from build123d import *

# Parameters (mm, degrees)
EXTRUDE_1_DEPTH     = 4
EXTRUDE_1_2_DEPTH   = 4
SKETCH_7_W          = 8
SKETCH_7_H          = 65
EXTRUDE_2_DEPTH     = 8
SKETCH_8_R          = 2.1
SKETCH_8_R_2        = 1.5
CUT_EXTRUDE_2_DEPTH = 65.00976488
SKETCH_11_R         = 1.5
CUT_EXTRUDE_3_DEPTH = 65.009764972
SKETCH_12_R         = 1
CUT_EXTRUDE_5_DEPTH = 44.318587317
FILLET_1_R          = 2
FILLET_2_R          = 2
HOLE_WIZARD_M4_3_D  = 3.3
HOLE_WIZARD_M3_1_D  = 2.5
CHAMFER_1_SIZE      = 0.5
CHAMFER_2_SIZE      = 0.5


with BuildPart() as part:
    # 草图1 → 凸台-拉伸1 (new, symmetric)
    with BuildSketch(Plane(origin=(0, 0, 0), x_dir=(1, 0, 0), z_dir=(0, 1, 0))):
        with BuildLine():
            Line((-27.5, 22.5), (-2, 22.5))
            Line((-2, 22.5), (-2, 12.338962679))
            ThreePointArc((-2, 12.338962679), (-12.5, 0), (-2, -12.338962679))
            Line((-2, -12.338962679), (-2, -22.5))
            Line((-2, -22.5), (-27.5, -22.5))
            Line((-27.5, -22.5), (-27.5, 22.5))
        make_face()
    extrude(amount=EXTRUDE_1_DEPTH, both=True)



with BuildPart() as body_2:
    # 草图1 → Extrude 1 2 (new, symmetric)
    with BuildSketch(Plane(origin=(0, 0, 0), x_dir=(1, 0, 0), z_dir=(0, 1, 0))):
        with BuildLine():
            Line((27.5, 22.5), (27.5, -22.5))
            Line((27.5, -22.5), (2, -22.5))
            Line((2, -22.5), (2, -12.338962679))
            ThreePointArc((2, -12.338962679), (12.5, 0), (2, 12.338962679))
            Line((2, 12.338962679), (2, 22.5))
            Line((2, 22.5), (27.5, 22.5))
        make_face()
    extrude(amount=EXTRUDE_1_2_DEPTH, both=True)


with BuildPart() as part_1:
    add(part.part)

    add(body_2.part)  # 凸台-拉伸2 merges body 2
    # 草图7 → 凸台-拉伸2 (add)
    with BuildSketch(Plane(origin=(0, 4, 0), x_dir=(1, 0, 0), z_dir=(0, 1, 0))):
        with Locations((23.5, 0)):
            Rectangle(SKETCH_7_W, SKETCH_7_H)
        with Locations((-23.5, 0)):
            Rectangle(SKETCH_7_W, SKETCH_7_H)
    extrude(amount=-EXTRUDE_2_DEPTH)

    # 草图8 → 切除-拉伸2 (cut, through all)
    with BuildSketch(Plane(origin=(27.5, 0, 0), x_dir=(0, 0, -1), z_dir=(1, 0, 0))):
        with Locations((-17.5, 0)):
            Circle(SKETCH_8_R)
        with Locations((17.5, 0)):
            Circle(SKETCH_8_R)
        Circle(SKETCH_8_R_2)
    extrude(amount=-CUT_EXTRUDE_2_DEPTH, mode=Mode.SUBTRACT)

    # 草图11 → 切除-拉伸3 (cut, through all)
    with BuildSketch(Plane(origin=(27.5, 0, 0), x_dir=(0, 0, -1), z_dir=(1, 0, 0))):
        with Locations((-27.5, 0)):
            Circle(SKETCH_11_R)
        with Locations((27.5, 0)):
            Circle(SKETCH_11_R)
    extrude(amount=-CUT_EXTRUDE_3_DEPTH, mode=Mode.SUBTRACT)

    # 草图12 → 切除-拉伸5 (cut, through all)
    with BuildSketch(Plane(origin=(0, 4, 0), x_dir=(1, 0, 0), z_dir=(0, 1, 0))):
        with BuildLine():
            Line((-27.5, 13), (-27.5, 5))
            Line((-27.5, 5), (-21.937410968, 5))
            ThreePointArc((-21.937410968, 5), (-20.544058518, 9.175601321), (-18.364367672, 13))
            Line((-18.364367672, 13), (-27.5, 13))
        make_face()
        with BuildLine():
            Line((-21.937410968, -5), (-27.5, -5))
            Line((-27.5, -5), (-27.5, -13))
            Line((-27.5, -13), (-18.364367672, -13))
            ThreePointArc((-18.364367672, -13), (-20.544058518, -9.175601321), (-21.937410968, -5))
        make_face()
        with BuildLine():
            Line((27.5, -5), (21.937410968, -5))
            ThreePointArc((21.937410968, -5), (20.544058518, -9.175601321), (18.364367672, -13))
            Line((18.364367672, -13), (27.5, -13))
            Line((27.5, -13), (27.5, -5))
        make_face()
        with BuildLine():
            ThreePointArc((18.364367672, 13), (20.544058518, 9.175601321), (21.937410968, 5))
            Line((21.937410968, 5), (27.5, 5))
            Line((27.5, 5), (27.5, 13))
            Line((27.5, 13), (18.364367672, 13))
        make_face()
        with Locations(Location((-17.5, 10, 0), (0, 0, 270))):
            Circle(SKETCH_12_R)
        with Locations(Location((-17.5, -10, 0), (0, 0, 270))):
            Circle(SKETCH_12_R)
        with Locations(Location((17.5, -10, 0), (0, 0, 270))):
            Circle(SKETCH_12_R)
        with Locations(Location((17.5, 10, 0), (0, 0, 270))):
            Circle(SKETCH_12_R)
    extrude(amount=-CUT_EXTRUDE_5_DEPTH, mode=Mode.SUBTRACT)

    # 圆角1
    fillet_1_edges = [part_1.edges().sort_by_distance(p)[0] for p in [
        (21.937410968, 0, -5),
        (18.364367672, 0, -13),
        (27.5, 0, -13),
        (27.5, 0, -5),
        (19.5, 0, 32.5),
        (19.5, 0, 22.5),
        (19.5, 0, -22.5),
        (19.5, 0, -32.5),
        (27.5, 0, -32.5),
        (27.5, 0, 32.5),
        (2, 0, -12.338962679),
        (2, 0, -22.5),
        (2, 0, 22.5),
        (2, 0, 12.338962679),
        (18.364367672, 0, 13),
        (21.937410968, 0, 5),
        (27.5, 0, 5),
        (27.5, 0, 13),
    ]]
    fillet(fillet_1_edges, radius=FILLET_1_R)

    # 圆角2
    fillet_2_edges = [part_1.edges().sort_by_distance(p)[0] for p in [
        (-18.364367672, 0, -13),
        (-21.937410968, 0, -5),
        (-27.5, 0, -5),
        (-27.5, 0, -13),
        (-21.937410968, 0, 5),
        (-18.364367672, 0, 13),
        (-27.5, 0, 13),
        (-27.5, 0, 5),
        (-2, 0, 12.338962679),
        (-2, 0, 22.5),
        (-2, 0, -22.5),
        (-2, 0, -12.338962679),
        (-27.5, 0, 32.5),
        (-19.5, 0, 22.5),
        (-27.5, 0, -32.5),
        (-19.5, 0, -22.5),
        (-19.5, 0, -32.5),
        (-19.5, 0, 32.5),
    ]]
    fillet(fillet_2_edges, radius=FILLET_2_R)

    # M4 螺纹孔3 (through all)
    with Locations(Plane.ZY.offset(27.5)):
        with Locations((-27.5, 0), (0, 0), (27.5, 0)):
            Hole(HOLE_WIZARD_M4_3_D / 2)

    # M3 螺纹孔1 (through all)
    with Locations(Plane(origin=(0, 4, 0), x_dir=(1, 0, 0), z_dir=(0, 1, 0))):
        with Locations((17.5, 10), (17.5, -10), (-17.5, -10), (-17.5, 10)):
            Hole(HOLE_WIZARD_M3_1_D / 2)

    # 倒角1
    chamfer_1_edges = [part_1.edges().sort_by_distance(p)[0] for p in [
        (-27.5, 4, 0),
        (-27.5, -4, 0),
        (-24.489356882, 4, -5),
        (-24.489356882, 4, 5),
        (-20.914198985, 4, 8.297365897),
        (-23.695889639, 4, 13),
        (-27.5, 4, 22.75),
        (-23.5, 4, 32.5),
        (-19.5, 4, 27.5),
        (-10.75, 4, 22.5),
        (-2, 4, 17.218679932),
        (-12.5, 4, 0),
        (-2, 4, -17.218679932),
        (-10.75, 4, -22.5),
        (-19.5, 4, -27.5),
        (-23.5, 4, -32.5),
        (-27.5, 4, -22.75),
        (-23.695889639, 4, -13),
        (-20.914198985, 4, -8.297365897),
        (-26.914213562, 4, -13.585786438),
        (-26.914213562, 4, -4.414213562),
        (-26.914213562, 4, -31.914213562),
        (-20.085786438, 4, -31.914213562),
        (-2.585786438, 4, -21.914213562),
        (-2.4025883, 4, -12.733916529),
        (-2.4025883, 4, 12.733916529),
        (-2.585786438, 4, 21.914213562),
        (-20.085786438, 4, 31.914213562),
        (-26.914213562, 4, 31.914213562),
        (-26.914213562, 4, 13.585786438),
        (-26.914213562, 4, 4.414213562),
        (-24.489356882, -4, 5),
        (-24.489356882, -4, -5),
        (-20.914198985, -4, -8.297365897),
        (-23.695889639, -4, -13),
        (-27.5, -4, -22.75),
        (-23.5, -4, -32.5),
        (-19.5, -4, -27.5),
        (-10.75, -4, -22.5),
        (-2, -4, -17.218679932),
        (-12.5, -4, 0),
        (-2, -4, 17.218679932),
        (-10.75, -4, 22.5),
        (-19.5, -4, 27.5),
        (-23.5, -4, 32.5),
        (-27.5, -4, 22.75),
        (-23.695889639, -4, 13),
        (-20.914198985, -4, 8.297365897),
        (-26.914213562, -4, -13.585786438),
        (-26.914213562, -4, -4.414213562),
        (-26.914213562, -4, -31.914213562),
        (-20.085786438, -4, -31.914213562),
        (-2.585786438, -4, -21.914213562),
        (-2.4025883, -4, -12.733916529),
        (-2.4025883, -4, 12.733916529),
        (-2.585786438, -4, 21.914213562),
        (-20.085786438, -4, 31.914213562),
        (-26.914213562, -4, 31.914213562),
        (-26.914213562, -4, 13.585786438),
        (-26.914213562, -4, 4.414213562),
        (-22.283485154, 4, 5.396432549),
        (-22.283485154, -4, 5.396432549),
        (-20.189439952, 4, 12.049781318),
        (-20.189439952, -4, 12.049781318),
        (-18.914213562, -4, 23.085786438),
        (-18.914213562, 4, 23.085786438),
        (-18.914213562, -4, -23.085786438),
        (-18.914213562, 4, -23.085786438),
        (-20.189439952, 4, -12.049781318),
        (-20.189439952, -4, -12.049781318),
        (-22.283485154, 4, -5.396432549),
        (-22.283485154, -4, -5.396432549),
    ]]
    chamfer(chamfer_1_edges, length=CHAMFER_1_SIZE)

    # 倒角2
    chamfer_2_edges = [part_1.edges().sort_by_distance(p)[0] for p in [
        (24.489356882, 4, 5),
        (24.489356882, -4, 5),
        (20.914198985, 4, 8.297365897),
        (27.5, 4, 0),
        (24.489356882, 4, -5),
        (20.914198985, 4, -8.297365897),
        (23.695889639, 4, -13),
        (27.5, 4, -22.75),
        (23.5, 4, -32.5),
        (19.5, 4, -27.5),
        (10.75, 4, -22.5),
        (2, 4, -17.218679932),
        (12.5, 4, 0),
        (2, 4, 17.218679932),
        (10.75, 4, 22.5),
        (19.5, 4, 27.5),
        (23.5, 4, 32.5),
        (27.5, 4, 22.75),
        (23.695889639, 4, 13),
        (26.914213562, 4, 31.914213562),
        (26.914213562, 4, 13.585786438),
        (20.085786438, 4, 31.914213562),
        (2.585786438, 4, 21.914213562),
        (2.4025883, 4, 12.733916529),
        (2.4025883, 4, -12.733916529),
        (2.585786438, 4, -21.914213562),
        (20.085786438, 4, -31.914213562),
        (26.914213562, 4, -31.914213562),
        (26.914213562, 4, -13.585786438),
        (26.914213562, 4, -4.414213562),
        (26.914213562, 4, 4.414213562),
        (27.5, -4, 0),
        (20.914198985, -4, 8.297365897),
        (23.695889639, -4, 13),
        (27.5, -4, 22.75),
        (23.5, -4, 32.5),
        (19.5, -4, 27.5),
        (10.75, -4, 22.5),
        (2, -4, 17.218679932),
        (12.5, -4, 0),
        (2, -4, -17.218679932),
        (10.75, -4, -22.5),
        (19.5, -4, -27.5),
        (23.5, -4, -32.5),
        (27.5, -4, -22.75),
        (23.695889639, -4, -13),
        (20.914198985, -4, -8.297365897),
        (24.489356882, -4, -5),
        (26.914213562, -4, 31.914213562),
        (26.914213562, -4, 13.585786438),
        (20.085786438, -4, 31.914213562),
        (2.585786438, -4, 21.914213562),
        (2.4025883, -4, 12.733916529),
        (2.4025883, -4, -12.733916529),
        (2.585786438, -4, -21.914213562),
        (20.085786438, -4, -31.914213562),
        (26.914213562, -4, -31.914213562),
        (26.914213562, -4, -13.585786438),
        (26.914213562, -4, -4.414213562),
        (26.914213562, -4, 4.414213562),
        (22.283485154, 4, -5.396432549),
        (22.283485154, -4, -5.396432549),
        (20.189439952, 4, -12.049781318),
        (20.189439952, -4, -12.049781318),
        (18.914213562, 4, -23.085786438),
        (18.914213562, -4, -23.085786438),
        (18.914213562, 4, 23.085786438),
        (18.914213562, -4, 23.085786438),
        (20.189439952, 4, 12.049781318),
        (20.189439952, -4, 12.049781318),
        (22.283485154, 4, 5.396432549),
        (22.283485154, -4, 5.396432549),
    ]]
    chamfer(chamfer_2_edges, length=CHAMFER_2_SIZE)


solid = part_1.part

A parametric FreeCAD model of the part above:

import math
import FreeCAD as App
import Part
import Sketcher
Q = App.Units.Quantity


def edges_at(feature, points):
    """Names of the edges that pass closest to the given points."""
    edges = feature.Shape.Edges
    near = lambda p: min(range(len(edges)), key=lambda i: edges[i].distToShape(Part.Vertex(*p))[0])
    return sorted({f"Edge{near(p) + 1}" for p in points})

doc = App.newDocument("Part")
params = doc.addObject("Spreadsheet::Sheet", "Params")
for row, (alias, value) in enumerate([
    ("sketch1_radius", "12.5 mm"),
    ("sketch1_height", "45 mm"),
    ("sketch1_width", "25.5 mm"),
    ("pad1_length", "8 mm"),
    ("sketch2_radius", "12.5 mm"),
    ("sketch2_height", "45 mm"),
    ("sketch2_width", "25.5 mm"),
    ("pad2_length", "8 mm"),
    ("sketch3_width", "8 mm"),
    ("sketch3_height", "65 mm"),
    ("pad3_length", "8 mm"),
    ("sketch4_diameter", "3 mm"),
    ("sketch4_diameter2", "4.2 mm"),
    ("sketch5_diameter", "3 mm"),
    ("sketch6_diameter", "2 mm"),
    ("sketch6_radius", "22.5 mm"),
    ("sketch6_height", "8 mm"),
    ("fillet_radius", "2 mm"),
    ("fillet2_radius", "2 mm"),
    ("sketch7_diameter", "3.3 mm"),
    ("hole_diameter", "3.3 mm"),
    ("sketch8_diameter", "2.5 mm"),
    ("hole2_diameter", "2.5 mm"),
    ("chamfer_size", "0.5 mm"),
    ("chamfer2_size", "0.5 mm"),
], start=1):
    params.set(f"A{row}", alias)
    params.set(f"B{row}", "=" + value)
    params.setAlias(f"B{row}", alias)

body = doc.addObject("PartDesign::Body", "Body")

sketch1 = body.newObject("Sketcher::SketchObject", "Sketch")
sketch1.AttachmentSupport = (doc.getObject("XZ_Plane"), [""])
sketch1.MapMode = "FlatFace"
sketch1.addGeometry(Part.LineSegment(App.Vector(-2, -22.5, 0), App.Vector(-27.5, -22.5, 0)), False)
sketch1.addGeometry(Part.LineSegment(App.Vector(-27.5, -22.5, 0), App.Vector(-27.5, 22.5, 0)), False)
sketch1.addGeometry(Part.LineSegment(App.Vector(-27.5, 22.5, 0), App.Vector(-2, 22.5, 0)), False)
sketch1.addGeometry(Part.LineSegment(App.Vector(-2, 22.5, 0), App.Vector(-2, 12.338963, 0)), False)
sketch1.addGeometry(Part.ArcOfCircle(Part.Circle(App.Vector(0, 0, 0), App.Vector(0, 0, 1), 12.5), math.radians(99.206896), math.radians(260.793104)), False)
sketch1.addGeometry(Part.LineSegment(App.Vector(-2, -12.338963, 0), App.Vector(-2, -22.5, 0)), False)
sketch1.addConstraint(Sketcher.Constraint("Coincident", 0, 2, 1, 1))
sketch1.addConstraint(Sketcher.Constraint("Coincident", 1, 2, 2, 1))
sketch1.addConstraint(Sketcher.Constraint("Coincident", 2, 2, 3, 1))
sketch1.addConstraint(Sketcher.Constraint("Coincident", 3, 2, 4, 1))
sketch1.addConstraint(Sketcher.Constraint("Coincident", 4, 2, 5, 1))
sketch1.addConstraint(Sketcher.Constraint("Coincident", 5, 2, 0, 1))
sketch1.addConstraint(Sketcher.Constraint("Horizontal", 0))
sketch1.addConstraint(Sketcher.Constraint("Vertical", 1))
sketch1.addConstraint(Sketcher.Constraint("Horizontal", 2))
sketch1.addConstraint(Sketcher.Constraint("Vertical", 3))
sketch1.addConstraint(Sketcher.Constraint("Vertical", 5))
sketch1.addConstraint(Sketcher.Constraint("Coincident", 4, 3, -1, 1))
sketch1.addConstraint(Sketcher.Constraint("Symmetric", 2, 2, 5, 2, -1))
sketch1.addConstraint(Sketcher.Constraint("Radius", 4, Q("12.5 mm")))
sketch1.addConstraint(Sketcher.Constraint("DistanceY", 1, 1, 1, 2, Q("45 mm")))
sketch1.addConstraint(Sketcher.Constraint("DistanceX", 0, 2, 0, 1, Q("25.5 mm")))
sketch1.addConstraint(Sketcher.Constraint("DistanceX", 2, 2, -1, 1, Q("2 mm")))
sketch1.setExpression("Constraints[13]", "Params.sketch1_radius")
sketch1.setExpression("Constraints[14]", "Params.sketch1_height")
sketch1.setExpression("Constraints[15]", "Params.sketch1_width")
pad1 = body.newObject("PartDesign::Pad", "Pad")
pad1.Profile = sketch1
pad1.setExpression("Length", "Params.pad1_length")
pad1.Midplane = True
body2 = doc.addObject("PartDesign::Body", "Body001")

sketch2 = body2.newObject("Sketcher::SketchObject", "Sketch001")
sketch2.AttachmentSupport = (doc.getObject("XZ_Plane001"), [""])
sketch2.MapMode = "FlatFace"
sketch2.addGeometry(Part.LineSegment(App.Vector(27.5, 22.5, 0), App.Vector(27.5, -22.5, 0)), False)
sketch2.addGeometry(Part.LineSegment(App.Vector(27.5, -22.5, 0), App.Vector(2, -22.5, 0)), False)
sketch2.addGeometry(Part.LineSegment(App.Vector(2, -22.5, 0), App.Vector(2, -12.338963, 0)), False)
sketch2.addGeometry(Part.ArcOfCircle(Part.Circle(App.Vector(0, 0, 0), App.Vector(0, 0, 1), 12.5), math.radians(-80.793104), math.radians(80.793104)), False)
sketch2.addGeometry(Part.LineSegment(App.Vector(2, 12.338963, 0), App.Vector(2, 22.5, 0)), False)
sketch2.addGeometry(Part.LineSegment(App.Vector(2, 22.5, 0), App.Vector(27.5, 22.5, 0)), False)
sketch2.addConstraint(Sketcher.Constraint("Coincident", 0, 2, 1, 1))
sketch2.addConstraint(Sketcher.Constraint("Coincident", 1, 2, 2, 1))
sketch2.addConstraint(Sketcher.Constraint("Coincident", 2, 2, 3, 1))
sketch2.addConstraint(Sketcher.Constraint("Coincident", 3, 2, 4, 1))
sketch2.addConstraint(Sketcher.Constraint("Coincident", 4, 2, 5, 1))
sketch2.addConstraint(Sketcher.Constraint("Coincident", 5, 2, 0, 1))
sketch2.addConstraint(Sketcher.Constraint("Vertical", 0))
sketch2.addConstraint(Sketcher.Constraint("Horizontal", 1))
sketch2.addConstraint(Sketcher.Constraint("Vertical", 2))
sketch2.addConstraint(Sketcher.Constraint("Vertical", 4))
sketch2.addConstraint(Sketcher.Constraint("Horizontal", 5))
sketch2.addConstraint(Sketcher.Constraint("Coincident", 3, 3, -1, 1))
sketch2.addConstraint(Sketcher.Constraint("Symmetric", 1, 2, 4, 2, -1))
sketch2.addConstraint(Sketcher.Constraint("Radius", 3, Q("12.5 mm")))
sketch2.addConstraint(Sketcher.Constraint("DistanceY", 0, 2, 0, 1, Q("45 mm")))
sketch2.addConstraint(Sketcher.Constraint("DistanceX", 1, 2, 1, 1, Q("25.5 mm")))
sketch2.addConstraint(Sketcher.Constraint("DistanceX", -1, 1, 1, 2, Q("2 mm")))
sketch2.setExpression("Constraints[13]", "Params.sketch2_radius")
sketch2.setExpression("Constraints[14]", "Params.sketch2_height")
sketch2.setExpression("Constraints[15]", "Params.sketch2_width")
pad2 = body2.newObject("PartDesign::Pad", "Pad001")
pad2.Profile = sketch2
pad2.setExpression("Length", "Params.pad2_length")
pad2.Midplane = True
body.AllowCompound = True
doc.recompute()

boolean = body.newObject("PartDesign::Boolean", "Boolean")
boolean.Type = "Fuse"
boolean.addObjects([body2])

sketch3 = body.newObject("Sketcher::SketchObject", "Sketch002")
sketch3.AttachmentSupport = (doc.getObject("XZ_Plane"), [""])
sketch3.MapMode = "FlatFace"
sketch3.AttachmentOffset = App.Placement(App.Vector(0, 0, -4), App.Rotation())
sketch3.addGeometry(Part.LineSegment(App.Vector(19.5, -32.5, 0), App.Vector(19.5, 32.5, 0)), False)
sketch3.addGeometry(Part.LineSegment(App.Vector(19.5, 32.5, 0), App.Vector(27.5, 32.5, 0)), False)
sketch3.addGeometry(Part.LineSegment(App.Vector(27.5, 32.5, 0), App.Vector(27.5, -32.5, 0)), False)
sketch3.addGeometry(Part.LineSegment(App.Vector(27.5, -32.5, 0), App.Vector(19.5, -32.5, 0)), False)
sketch3.addGeometry(Part.LineSegment(App.Vector(-27.5, -32.5, 0), App.Vector(-27.5, 32.5, 0)), False)
sketch3.addGeometry(Part.LineSegment(App.Vector(-27.5, 32.5, 0), App.Vector(-19.5, 32.5, 0)), False)
sketch3.addGeometry(Part.LineSegment(App.Vector(-19.5, 32.5, 0), App.Vector(-19.5, -32.5, 0)), False)
sketch3.addGeometry(Part.LineSegment(App.Vector(-19.5, -32.5, 0), App.Vector(-27.5, -32.5, 0)), False)
sketch3.addConstraint(Sketcher.Constraint("Coincident", 0, 2, 1, 1))
sketch3.addConstraint(Sketcher.Constraint("Coincident", 1, 2, 2, 1))
sketch3.addConstraint(Sketcher.Constraint("Coincident", 2, 2, 3, 1))
sketch3.addConstraint(Sketcher.Constraint("Coincident", 3, 2, 0, 1))
sketch3.addConstraint(Sketcher.Constraint("Coincident", 4, 2, 5, 1))
sketch3.addConstraint(Sketcher.Constraint("Coincident", 5, 2, 6, 1))
sketch3.addConstraint(Sketcher.Constraint("Coincident", 6, 2, 7, 1))
sketch3.addConstraint(Sketcher.Constraint("Coincident", 7, 2, 4, 1))
sketch3.addConstraint(Sketcher.Constraint("Vertical", 0))
sketch3.addConstraint(Sketcher.Constraint("Horizontal", 1))
sketch3.addConstraint(Sketcher.Constraint("Vertical", 2))
sketch3.addConstraint(Sketcher.Constraint("Horizontal", 3))
sketch3.addConstraint(Sketcher.Constraint("Vertical", 4))
sketch3.addConstraint(Sketcher.Constraint("Horizontal", 5))
sketch3.addConstraint(Sketcher.Constraint("Vertical", 6))
sketch3.addConstraint(Sketcher.Constraint("Horizontal", 7))
sketch3.addConstraint(Sketcher.Constraint("Symmetric", 2, 2, 4, 2, -1, 1))
sketch3.addConstraint(Sketcher.Constraint("Symmetric", 0, 2, 6, 2, -1, 1))
sketch3.addConstraint(Sketcher.Constraint("Horizontal", 1, 2, 4, 2))
sketch3.addConstraint(Sketcher.Constraint("DistanceX", 1, 1, 1, 2, Q("8 mm")))
sketch3.addConstraint(Sketcher.Constraint("DistanceY", 0, 1, 0, 2, Q("65 mm")))
sketch3.addConstraint(Sketcher.Constraint("DistanceX", 4, 2, 0, 2, Q("47 mm")))
sketch3.setExpression("Constraints[19]", "Params.sketch3_width")
sketch3.setExpression("Constraints[20]", "Params.sketch3_height")
pad3 = body.newObject("PartDesign::Pad", "Pad002")
pad3.Profile = sketch3
pad3.setExpression("Length", "Params.pad3_length")

sketch4 = body.newObject("Sketcher::SketchObject", "Sketch003")
sketch4.AttachmentSupport = (doc.getObject("YZ_Plane"), [""])
sketch4.MapMode = "FlatFace"
sketch4.AttachmentOffset = App.Placement(App.Vector(0, 0, 27.5), App.Rotation())
sketch4.addGeometry(Part.Circle(App.Vector(0, 17.5, 0), App.Vector(0, 0, 1), 2.1), False)
sketch4.addGeometry(Part.Circle(App.Vector(0, -17.5, 0), App.Vector(0, 0, 1), 2.1), False)
sketch4.addGeometry(Part.Circle(App.Vector(0, 0, 0), App.Vector(0, 0, 1), 1.5), False)
sketch4.addConstraint(Sketcher.Constraint("Coincident", 2, 3, -1, 1))
sketch4.addConstraint(Sketcher.Constraint("Equal", 0, 1))
sketch4.addConstraint(Sketcher.Constraint("Symmetric", 0, 3, 1, 3, -1, 1))
sketch4.addConstraint(Sketcher.Constraint("PointOnObject", 0, 3, -2))
sketch4.addConstraint(Sketcher.Constraint("Diameter", 2, Q("3 mm")))
sketch4.addConstraint(Sketcher.Constraint("Diameter", 0, Q("4.2 mm")))
sketch4.addConstraint(Sketcher.Constraint("DistanceY", 1, 3, 0, 3, Q("35 mm")))
sketch4.setExpression("Constraints[4]", "Params.sketch4_diameter")
sketch4.setExpression("Constraints[5]", "Params.sketch4_diameter2")
pocket1 = body.newObject("PartDesign::Pocket", "Pocket")
pocket1.Profile = sketch4
pocket1.Type = "ThroughAll"

sketch5 = body.newObject("Sketcher::SketchObject", "Sketch004")
sketch5.AttachmentSupport = (doc.getObject("YZ_Plane"), [""])
sketch5.MapMode = "FlatFace"
sketch5.AttachmentOffset = App.Placement(App.Vector(0, 0, 27.5), App.Rotation())
sketch5.addGeometry(Part.Circle(App.Vector(0, 27.5, 0), App.Vector(0, 0, 1), 1.5), False)
sketch5.addGeometry(Part.Circle(App.Vector(0, -27.5, 0), App.Vector(0, 0, 1), 1.5), False)
sketch5.addConstraint(Sketcher.Constraint("Equal", 0, 1))
sketch5.addConstraint(Sketcher.Constraint("Symmetric", 0, 3, 1, 3, -1, 1))
sketch5.addConstraint(Sketcher.Constraint("PointOnObject", 0, 3, -2))
sketch5.addConstraint(Sketcher.Constraint("Diameter", 0, Q("3 mm")))
sketch5.addConstraint(Sketcher.Constraint("DistanceY", 1, 3, 0, 3, Q("55 mm")))
sketch5.setExpression("Constraints[3]", "Params.sketch5_diameter")
pocket2 = body.newObject("PartDesign::Pocket", "Pocket001")
pocket2.Profile = sketch5
pocket2.Type = "ThroughAll"

sketch6 = body.newObject("Sketcher::SketchObject", "Sketch005")
sketch6.AttachmentSupport = (doc.getObject("XZ_Plane"), [""])
sketch6.MapMode = "FlatFace"
sketch6.AttachmentOffset = App.Placement(App.Vector(0, 0, -4), App.Rotation())
sketch6.addGeometry(Part.LineSegment(App.Vector(-27.5, -13, 0), App.Vector(-27.5, -5, 0)), False)
sketch6.addGeometry(Part.LineSegment(App.Vector(-27.5, -5, 0), App.Vector(-21.937411, -5, 0)), False)
sketch6.addGeometry(Part.ArcOfCircle(Part.Circle(App.Vector(0, 0, 0), App.Vector(0, 0, 1), 22.5), math.radians(-167.160412), math.radians(-144.705605)), False)
sketch6.addGeometry(Part.LineSegment(App.Vector(-18.364368, -13, 0), App.Vector(-27.5, -13, 0)), False)
sketch6.addGeometry(Part.LineSegment(App.Vector(-21.937411, 5, 0), App.Vector(-27.5, 5, 0)), False)
sketch6.addGeometry(Part.LineSegment(App.Vector(-27.5, 5, 0), App.Vector(-27.5, 13, 0)), False)
sketch6.addGeometry(Part.LineSegment(App.Vector(-27.5, 13, 0), App.Vector(-18.364368, 13, 0)), False)
sketch6.addGeometry(Part.ArcOfCircle(Part.Circle(App.Vector(0, 0, 0), App.Vector(0, 0, 1), 22.5), math.radians(144.705605), math.radians(167.160412)), False)
sketch6.addGeometry(Part.LineSegment(App.Vector(27.5, 5, 0), App.Vector(21.937411, 5, 0)), False)
sketch6.addGeometry(Part.ArcOfCircle(Part.Circle(App.Vector(0, 0, 0), App.Vector(0, 0, 1), 22.5), math.radians(12.839588), math.radians(35.294395)), False)
sketch6.addGeometry(Part.LineSegment(App.Vector(18.364368, 13, 0), App.Vector(27.5, 13, 0)), False)
sketch6.addGeometry(Part.LineSegment(App.Vector(27.5, 13, 0), App.Vector(27.5, 5, 0)), False)
sketch6.addGeometry(Part.ArcOfCircle(Part.Circle(App.Vector(0, 0, 0), App.Vector(0, 0, 1), 22.5), math.radians(-35.294395), math.radians(-12.839588)), False)
sketch6.addGeometry(Part.LineSegment(App.Vector(21.937411, -5, 0), App.Vector(27.5, -5, 0)), False)
sketch6.addGeometry(Part.LineSegment(App.Vector(27.5, -5, 0), App.Vector(27.5, -13, 0)), False)
sketch6.addGeometry(Part.LineSegment(App.Vector(27.5, -13, 0), App.Vector(18.364368, -13, 0)), False)
sketch6.addGeometry(Part.Circle(App.Vector(-17.5, -10, 0), App.Vector(0, 0, 1), 1), False)
sketch6.addGeometry(Part.Circle(App.Vector(-17.5, 10, 0), App.Vector(0, 0, 1), 1), False)
sketch6.addGeometry(Part.Circle(App.Vector(17.5, 10, 0), App.Vector(0, 0, 1), 1), False)
sketch6.addGeometry(Part.Circle(App.Vector(17.5, -10, 0), App.Vector(0, 0, 1), 1), False)
sketch6.addConstraint(Sketcher.Constraint("Coincident", 0, 2, 1, 1))
sketch6.addConstraint(Sketcher.Constraint("Coincident", 1, 2, 2, 1))
sketch6.addConstraint(Sketcher.Constraint("Coincident", 2, 2, 3, 1))
sketch6.addConstraint(Sketcher.Constraint("Coincident", 3, 2, 0, 1))
sketch6.addConstraint(Sketcher.Constraint("Coincident", 4, 2, 5, 1))
sketch6.addConstraint(Sketcher.Constraint("Coincident", 5, 2, 6, 1))
sketch6.addConstraint(Sketcher.Constraint("Coincident", 6, 2, 7, 1))
sketch6.addConstraint(Sketcher.Constraint("Coincident", 7, 2, 4, 1))
sketch6.addConstraint(Sketcher.Constraint("Coincident", 8, 2, 9, 1))
sketch6.addConstraint(Sketcher.Constraint("Coincident", 9, 2, 10, 1))
sketch6.addConstraint(Sketcher.Constraint("Coincident", 10, 2, 11, 1))
sketch6.addConstraint(Sketcher.Constraint("Coincident", 11, 2, 8, 1))
sketch6.addConstraint(Sketcher.Constraint("Coincident", 12, 2, 13, 1))
sketch6.addConstraint(Sketcher.Constraint("Coincident", 13, 2, 14, 1))
sketch6.addConstraint(Sketcher.Constraint("Coincident", 14, 2, 15, 1))
sketch6.addConstraint(Sketcher.Constraint("Coincident", 15, 2, 12, 1))
sketch6.addConstraint(Sketcher.Constraint("Vertical", 0))
sketch6.addConstraint(Sketcher.Constraint("Horizontal", 1))
sketch6.addConstraint(Sketcher.Constraint("Horizontal", 3))
sketch6.addConstraint(Sketcher.Constraint("Horizontal", 4))
sketch6.addConstraint(Sketcher.Constraint("Vertical", 5))
sketch6.addConstraint(Sketcher.Constraint("Horizontal", 6))
sketch6.addConstraint(Sketcher.Constraint("Horizontal", 8))
sketch6.addConstraint(Sketcher.Constraint("Horizontal", 10))
sketch6.addConstraint(Sketcher.Constraint("Vertical", 11))
sketch6.addConstraint(Sketcher.Constraint("Horizontal", 13))
sketch6.addConstraint(Sketcher.Constraint("Vertical", 14))
sketch6.addConstraint(Sketcher.Constraint("Horizontal", 15))
sketch6.addConstraint(Sketcher.Constraint("Coincident", 2, 3, -1, 1))
sketch6.addConstraint(Sketcher.Constraint("Coincident", 7, 3, -1, 1))
sketch6.addConstraint(Sketcher.Constraint("Coincident", 9, 3, -1, 1))
sketch6.addConstraint(Sketcher.Constraint("Coincident", 12, 3, -1, 1))
sketch6.addConstraint(Sketcher.Constraint("Equal", 2, 7))
sketch6.addConstraint(Sketcher.Constraint("Equal", 7, 9))
sketch6.addConstraint(Sketcher.Constraint("Equal", 9, 12))
sketch6.addConstraint(Sketcher.Constraint("Equal", 16, 17))
sketch6.addConstraint(Sketcher.Constraint("Equal", 17, 18))
sketch6.addConstraint(Sketcher.Constraint("Equal", 18, 19))
sketch6.addConstraint(Sketcher.Constraint("Symmetric", 16, 3, 18, 3, -1, 1))
sketch6.addConstraint(Sketcher.Constraint("Symmetric", 17, 3, 19, 3, -1, 1))
sketch6.addConstraint(Sketcher.Constraint("Symmetric", 3, 2, 10, 2, -1, 1))
sketch6.addConstraint(Sketcher.Constraint("Symmetric", 4, 2, 13, 2, -1, 1))
sketch6.addConstraint(Sketcher.Constraint("Symmetric", 17, 3, 18, 3, -2))
sketch6.addConstraint(Sketcher.Constraint("Symmetric", 5, 2, 10, 2, -2))
sketch6.addConstraint(Sketcher.Constraint("Horizontal", 7, 2, 8, 2))
sketch6.addConstraint(Sketcher.Constraint("Horizontal", 1, 2, 12, 2))
sketch6.addConstraint(Sketcher.Constraint("Horizontal", 3, 2, 14, 2))
sketch6.addConstraint(Sketcher.Constraint("Diameter", 16, Q("2 mm")))
sketch6.addConstraint(Sketcher.Constraint("Radius", 2, Q("22.5 mm")))
sketch6.addConstraint(Sketcher.Constraint("DistanceY", 0, 1, 0, 2, Q("8 mm")))
sketch6.addConstraint(Sketcher.Constraint("DistanceY", 16, 3, -1, 1, Q("10 mm")))
sketch6.addConstraint(Sketcher.Constraint("DistanceY", 0, 2, -1, 1, Q("5 mm")))
sketch6.addConstraint(Sketcher.Constraint("DistanceX", 17, 3, 18, 3, Q("35 mm")))
sketch6.addConstraint(Sketcher.Constraint("DistanceX", 0, 2, 16, 3, Q("10 mm")))
sketch6.setExpression("Constraints[47]", "Params.sketch6_diameter")
sketch6.setExpression("Constraints[48]", "Params.sketch6_radius")
sketch6.setExpression("Constraints[49]", "Params.sketch6_height")
pocket3 = body.newObject("PartDesign::Pocket", "Pocket002")
pocket3.Profile = sketch6
pocket3.Type = "ThroughAll"
pocket3.Reversed = True
doc.recompute()

fillet = body.newObject("PartDesign::Fillet", "Fillet")
fillet.Base = (pocket3, edges_at(pocket3, [
    (21.937, 0, -5),
    (18.364, 0, -13),
    (27.5, 0, -13),
    (27.5, 0, -5),
    (19.5, 0, 32.5),
    (19.5, 0, 22.5),
    (19.5, 0, -22.5),
    (19.5, 0, -32.5),
    (27.5, 0, -32.5),
    (27.5, 0, 32.5),
    (2, 0, -12.339),
    (2, 0, -22.5),
    (2, 0, 22.5),
    (2, 0, 12.339),
    (18.364, 0, 13),
    (21.937, 0, 5),
    (27.5, 0, 5),
    (27.5, 0, 13),
]))
fillet.setExpression("Radius", "Params.fillet_radius")
doc.recompute()

fillet2 = body.newObject("PartDesign::Fillet", "Fillet001")
fillet2.Base = (fillet, edges_at(fillet, [
    (-18.364, 0, -13),
    (-21.937, 0, -5),
    (-27.5, 0, -5),
    (-27.5, 0, -13),
    (-21.937, 0, 5),
    (-18.364, 0, 13),
    (-27.5, 0, 13),
    (-27.5, 0, 5),
    (-2, 0, 12.339),
    (-2, 0, 22.5),
    (-2, 0, -22.5),
    (-2, 0, -12.339),
    (-27.5, 0, 32.5),
    (-19.5, 0, 22.5),
    (-27.5, 0, -32.5),
    (-19.5, 0, -22.5),
    (-19.5, 0, -32.5),
    (-19.5, 0, 32.5),
]))
fillet2.setExpression("Radius", "Params.fillet2_radius")

sketch7 = body.newObject("Sketcher::SketchObject", "Sketch006")
sketch7.AttachmentSupport = (doc.getObject("YZ_Plane"), [""])
sketch7.MapMode = "FlatFace"
sketch7.AttachmentOffset = App.Placement(App.Vector(0, 0, -27.5), App.Rotation())
sketch7.addGeometry(Part.Circle(App.Vector(0, -27.5, 0), App.Vector(0, 0, 1), 1.65), False)
sketch7.addGeometry(Part.Circle(App.Vector(0, 0, 0), App.Vector(0, 0, 1), 1.65), False)
sketch7.addGeometry(Part.Circle(App.Vector(0, 27.5, 0), App.Vector(0, 0, 1), 1.65), False)
sketch7.addConstraint(Sketcher.Constraint("Coincident", 1, 3, -1, 1))
sketch7.addConstraint(Sketcher.Constraint("Equal", 0, 1))
sketch7.addConstraint(Sketcher.Constraint("Equal", 1, 2))
sketch7.addConstraint(Sketcher.Constraint("Symmetric", 0, 3, 2, 3, -1, 1))
sketch7.addConstraint(Sketcher.Constraint("PointOnObject", 0, 3, -2))
sketch7.addConstraint(Sketcher.Constraint("Diameter", 0, Q("3.3 mm")))
sketch7.addConstraint(Sketcher.Constraint("DistanceY", 0, 3, 2, 3, Q("55 mm")))
sketch7.setExpression("Constraints[5]", "Params.sketch7_diameter")
doc.recompute()
hole = body.newObject("PartDesign::Hole", "Hole")
hole.Profile = sketch7
hole.ThreadType = "None"
hole.setExpression("Diameter", "Params.hole_diameter")
hole.DepthType = "ThroughAll"
hole.Reversed = True

sketch8 = body.newObject("Sketcher::SketchObject", "Sketch007")
sketch8.AttachmentSupport = (doc.getObject("XZ_Plane"), [""])
sketch8.MapMode = "FlatFace"
sketch8.AttachmentOffset = App.Placement(App.Vector(0, 0, -4), App.Rotation())
sketch8.addGeometry(Part.Circle(App.Vector(17.5, -10, 0), App.Vector(0, 0, 1), 1.25), False)
sketch8.addGeometry(Part.Circle(App.Vector(17.5, 10, 0), App.Vector(0, 0, 1), 1.25), False)
sketch8.addGeometry(Part.Circle(App.Vector(-17.5, 10, 0), App.Vector(0, 0, 1), 1.25), False)
sketch8.addGeometry(Part.Circle(App.Vector(-17.5, -10, 0), App.Vector(0, 0, 1), 1.25), False)
sketch8.addConstraint(Sketcher.Constraint("Equal", 0, 1))
sketch8.addConstraint(Sketcher.Constraint("Equal", 1, 2))
sketch8.addConstraint(Sketcher.Constraint("Equal", 2, 3))
sketch8.addConstraint(Sketcher.Constraint("Symmetric", 0, 3, 2, 3, -1, 1))
sketch8.addConstraint(Sketcher.Constraint("Symmetric", 1, 3, 3, 3, -1, 1))
sketch8.addConstraint(Sketcher.Constraint("Symmetric", 1, 3, 2, 3, -2))
sketch8.addConstraint(Sketcher.Constraint("Diameter", 0, Q("2.5 mm")))
sketch8.addConstraint(Sketcher.Constraint("DistanceY", 0, 3, -1, 1, Q("10 mm")))
sketch8.addConstraint(Sketcher.Constraint("DistanceX", 2, 3, 1, 3, Q("35 mm")))
sketch8.setExpression("Constraints[6]", "Params.sketch8_diameter")
doc.recompute()
hole2 = body.newObject("PartDesign::Hole", "Hole001")
hole2.Profile = sketch8
hole2.ThreadType = "None"
hole2.setExpression("Diameter", "Params.hole2_diameter")
hole2.DepthType = "ThroughAll"
hole2.Reversed = True
doc.recompute()

chamfer = body.newObject("PartDesign::Chamfer", "Chamfer")
chamfer.Base = (hole2, edges_at(hole2, [
    (-27.5, 4, 0),
    (-27.5, -4, 0),
    (-24.489, 4, -5),
    (-24.489, 4, 5),
    (-20.914, 4, 8.297),
    (-23.696, 4, 13),
    (-27.5, 4, 22.75),
    (-23.5, 4, 32.5),
    (-19.5, 4, 27.5),
    (-10.75, 4, 22.5),
    (-2, 4, 17.219),
    (-12.5, 4, 0),
    (-2, 4, -17.219),
    (-10.75, 4, -22.5),
    (-19.5, 4, -27.5),
    (-23.5, 4, -32.5),
    (-27.5, 4, -22.75),
    (-23.696, 4, -13),
    (-20.914, 4, -8.297),
    (-26.914, 4, -13.586),
    (-26.914, 4, -4.414),
    (-26.914, 4, -31.914),
    (-20.086, 4, -31.914),
    (-2.586, 4, -21.914),
    (-2.403, 4, -12.734),
    (-2.403, 4, 12.734),
    (-2.586, 4, 21.914),
    (-20.086, 4, 31.914),
    (-26.914, 4, 31.914),
    (-26.914, 4, 13.586),
    (-26.914, 4, 4.414),
    (-24.489, -4, 5),
    (-24.489, -4, -5),
    (-20.914, -4, -8.297),
    (-23.696, -4, -13),
    (-27.5, -4, -22.75),
    (-23.5, -4, -32.5),
    (-19.5, -4, -27.5),
    (-10.75, -4, -22.5),
    (-2, -4, -17.219),
    (-12.5, -4, 0),
    (-2, -4, 17.219),
    (-10.75, -4, 22.5),
    (-19.5, -4, 27.5),
    (-23.5, -4, 32.5),
    (-27.5, -4, 22.75),
    (-23.696, -4, 13),
    (-20.914, -4, 8.297),
    (-26.914, -4, -13.586),
    (-26.914, -4, -4.414),
    (-26.914, -4, -31.914),
    (-20.086, -4, -31.914),
    (-2.586, -4, -21.914),
    (-2.403, -4, -12.734),
    (-2.403, -4, 12.734),
    (-2.586, -4, 21.914),
    (-20.086, -4, 31.914),
    (-26.914, -4, 31.914),
    (-26.914, -4, 13.586),
    (-26.914, -4, 4.414),
    (-22.283, 4, 5.396),
    (-22.283, -4, 5.396),
    (-20.189, 4, 12.05),
    (-20.189, -4, 12.05),
    (-18.914, -4, 23.086),
    (-18.914, 4, 23.086),
    (-18.914, -4, -23.086),
    (-18.914, 4, -23.086),
    (-20.189, 4, -12.05),
    (-20.189, -4, -12.05),
    (-22.283, 4, -5.396),
    (-22.283, -4, -5.396),
]))
chamfer.setExpression("Size", "Params.chamfer_size")
doc.recompute()

chamfer2 = body.newObject("PartDesign::Chamfer", "Chamfer001")
chamfer2.Base = (chamfer, edges_at(chamfer, [
    (24.489, 4, 5),
    (24.489, -4, 5),
    (20.914, 4, 8.297),
    (27.5, 4, 0),
    (24.489, 4, -5),
    (20.914, 4, -8.297),
    (23.696, 4, -13),
    (27.5, 4, -22.75),
    (23.5, 4, -32.5),
    (19.5, 4, -27.5),
    (10.75, 4, -22.5),
    (2, 4, -17.219),
    (12.5, 4, 0),
    (2, 4, 17.219),
    (10.75, 4, 22.5),
    (19.5, 4, 27.5),
    (23.5, 4, 32.5),
    (27.5, 4, 22.75),
    (23.696, 4, 13),
    (26.914, 4, 31.914),
    (26.914, 4, 13.586),
    (20.086, 4, 31.914),
    (2.586, 4, 21.914),
    (2.403, 4, 12.734),
    (2.403, 4, -12.734),
    (2.586, 4, -21.914),
    (20.086, 4, -31.914),
    (26.914, 4, -31.914),
    (26.914, 4, -13.586),
    (26.914, 4, -4.414),
    (26.914, 4, 4.414),
    (27.5, -4, 0),
    (20.914, -4, 8.297),
    (23.696, -4, 13),
    (27.5, -4, 22.75),
    (23.5, -4, 32.5),
    (19.5, -4, 27.5),
    (10.75, -4, 22.5),
    (2, -4, 17.219),
    (12.5, -4, 0),
    (2, -4, -17.219),
    (10.75, -4, -22.5),
    (19.5, -4, -27.5),
    (23.5, -4, -32.5),
    (27.5, -4, -22.75),
    (23.696, -4, -13),
    (20.914, -4, -8.297),
    (24.489, -4, -5),
    (26.914, -4, 31.914),
    (26.914, -4, 13.586),
    (20.086, -4, 31.914),
    (2.586, -4, 21.914),
    (2.403, -4, 12.734),
    (2.403, -4, -12.734),
    (2.586, -4, -21.914),
    (20.086, -4, -31.914),
    (26.914, -4, -31.914),
    (26.914, -4, -13.586),
    (26.914, -4, -4.414),
    (26.914, -4, 4.414),
    (22.283, 4, -5.396),
    (22.283, -4, -5.396),
    (20.189, 4, -12.05),
    (20.189, -4, -12.05),
    (18.914, 4, -23.086),
    (18.914, -4, -23.086),
    (18.914, 4, 23.086),
    (18.914, -4, 23.086),
    (20.189, 4, 12.05),
    (20.189, -4, 12.05),
    (22.283, 4, 5.396),
    (22.283, -4, 5.396),
]))
chamfer2.setExpression("Size", "Params.chamfer2_size")

doc.recompute()
